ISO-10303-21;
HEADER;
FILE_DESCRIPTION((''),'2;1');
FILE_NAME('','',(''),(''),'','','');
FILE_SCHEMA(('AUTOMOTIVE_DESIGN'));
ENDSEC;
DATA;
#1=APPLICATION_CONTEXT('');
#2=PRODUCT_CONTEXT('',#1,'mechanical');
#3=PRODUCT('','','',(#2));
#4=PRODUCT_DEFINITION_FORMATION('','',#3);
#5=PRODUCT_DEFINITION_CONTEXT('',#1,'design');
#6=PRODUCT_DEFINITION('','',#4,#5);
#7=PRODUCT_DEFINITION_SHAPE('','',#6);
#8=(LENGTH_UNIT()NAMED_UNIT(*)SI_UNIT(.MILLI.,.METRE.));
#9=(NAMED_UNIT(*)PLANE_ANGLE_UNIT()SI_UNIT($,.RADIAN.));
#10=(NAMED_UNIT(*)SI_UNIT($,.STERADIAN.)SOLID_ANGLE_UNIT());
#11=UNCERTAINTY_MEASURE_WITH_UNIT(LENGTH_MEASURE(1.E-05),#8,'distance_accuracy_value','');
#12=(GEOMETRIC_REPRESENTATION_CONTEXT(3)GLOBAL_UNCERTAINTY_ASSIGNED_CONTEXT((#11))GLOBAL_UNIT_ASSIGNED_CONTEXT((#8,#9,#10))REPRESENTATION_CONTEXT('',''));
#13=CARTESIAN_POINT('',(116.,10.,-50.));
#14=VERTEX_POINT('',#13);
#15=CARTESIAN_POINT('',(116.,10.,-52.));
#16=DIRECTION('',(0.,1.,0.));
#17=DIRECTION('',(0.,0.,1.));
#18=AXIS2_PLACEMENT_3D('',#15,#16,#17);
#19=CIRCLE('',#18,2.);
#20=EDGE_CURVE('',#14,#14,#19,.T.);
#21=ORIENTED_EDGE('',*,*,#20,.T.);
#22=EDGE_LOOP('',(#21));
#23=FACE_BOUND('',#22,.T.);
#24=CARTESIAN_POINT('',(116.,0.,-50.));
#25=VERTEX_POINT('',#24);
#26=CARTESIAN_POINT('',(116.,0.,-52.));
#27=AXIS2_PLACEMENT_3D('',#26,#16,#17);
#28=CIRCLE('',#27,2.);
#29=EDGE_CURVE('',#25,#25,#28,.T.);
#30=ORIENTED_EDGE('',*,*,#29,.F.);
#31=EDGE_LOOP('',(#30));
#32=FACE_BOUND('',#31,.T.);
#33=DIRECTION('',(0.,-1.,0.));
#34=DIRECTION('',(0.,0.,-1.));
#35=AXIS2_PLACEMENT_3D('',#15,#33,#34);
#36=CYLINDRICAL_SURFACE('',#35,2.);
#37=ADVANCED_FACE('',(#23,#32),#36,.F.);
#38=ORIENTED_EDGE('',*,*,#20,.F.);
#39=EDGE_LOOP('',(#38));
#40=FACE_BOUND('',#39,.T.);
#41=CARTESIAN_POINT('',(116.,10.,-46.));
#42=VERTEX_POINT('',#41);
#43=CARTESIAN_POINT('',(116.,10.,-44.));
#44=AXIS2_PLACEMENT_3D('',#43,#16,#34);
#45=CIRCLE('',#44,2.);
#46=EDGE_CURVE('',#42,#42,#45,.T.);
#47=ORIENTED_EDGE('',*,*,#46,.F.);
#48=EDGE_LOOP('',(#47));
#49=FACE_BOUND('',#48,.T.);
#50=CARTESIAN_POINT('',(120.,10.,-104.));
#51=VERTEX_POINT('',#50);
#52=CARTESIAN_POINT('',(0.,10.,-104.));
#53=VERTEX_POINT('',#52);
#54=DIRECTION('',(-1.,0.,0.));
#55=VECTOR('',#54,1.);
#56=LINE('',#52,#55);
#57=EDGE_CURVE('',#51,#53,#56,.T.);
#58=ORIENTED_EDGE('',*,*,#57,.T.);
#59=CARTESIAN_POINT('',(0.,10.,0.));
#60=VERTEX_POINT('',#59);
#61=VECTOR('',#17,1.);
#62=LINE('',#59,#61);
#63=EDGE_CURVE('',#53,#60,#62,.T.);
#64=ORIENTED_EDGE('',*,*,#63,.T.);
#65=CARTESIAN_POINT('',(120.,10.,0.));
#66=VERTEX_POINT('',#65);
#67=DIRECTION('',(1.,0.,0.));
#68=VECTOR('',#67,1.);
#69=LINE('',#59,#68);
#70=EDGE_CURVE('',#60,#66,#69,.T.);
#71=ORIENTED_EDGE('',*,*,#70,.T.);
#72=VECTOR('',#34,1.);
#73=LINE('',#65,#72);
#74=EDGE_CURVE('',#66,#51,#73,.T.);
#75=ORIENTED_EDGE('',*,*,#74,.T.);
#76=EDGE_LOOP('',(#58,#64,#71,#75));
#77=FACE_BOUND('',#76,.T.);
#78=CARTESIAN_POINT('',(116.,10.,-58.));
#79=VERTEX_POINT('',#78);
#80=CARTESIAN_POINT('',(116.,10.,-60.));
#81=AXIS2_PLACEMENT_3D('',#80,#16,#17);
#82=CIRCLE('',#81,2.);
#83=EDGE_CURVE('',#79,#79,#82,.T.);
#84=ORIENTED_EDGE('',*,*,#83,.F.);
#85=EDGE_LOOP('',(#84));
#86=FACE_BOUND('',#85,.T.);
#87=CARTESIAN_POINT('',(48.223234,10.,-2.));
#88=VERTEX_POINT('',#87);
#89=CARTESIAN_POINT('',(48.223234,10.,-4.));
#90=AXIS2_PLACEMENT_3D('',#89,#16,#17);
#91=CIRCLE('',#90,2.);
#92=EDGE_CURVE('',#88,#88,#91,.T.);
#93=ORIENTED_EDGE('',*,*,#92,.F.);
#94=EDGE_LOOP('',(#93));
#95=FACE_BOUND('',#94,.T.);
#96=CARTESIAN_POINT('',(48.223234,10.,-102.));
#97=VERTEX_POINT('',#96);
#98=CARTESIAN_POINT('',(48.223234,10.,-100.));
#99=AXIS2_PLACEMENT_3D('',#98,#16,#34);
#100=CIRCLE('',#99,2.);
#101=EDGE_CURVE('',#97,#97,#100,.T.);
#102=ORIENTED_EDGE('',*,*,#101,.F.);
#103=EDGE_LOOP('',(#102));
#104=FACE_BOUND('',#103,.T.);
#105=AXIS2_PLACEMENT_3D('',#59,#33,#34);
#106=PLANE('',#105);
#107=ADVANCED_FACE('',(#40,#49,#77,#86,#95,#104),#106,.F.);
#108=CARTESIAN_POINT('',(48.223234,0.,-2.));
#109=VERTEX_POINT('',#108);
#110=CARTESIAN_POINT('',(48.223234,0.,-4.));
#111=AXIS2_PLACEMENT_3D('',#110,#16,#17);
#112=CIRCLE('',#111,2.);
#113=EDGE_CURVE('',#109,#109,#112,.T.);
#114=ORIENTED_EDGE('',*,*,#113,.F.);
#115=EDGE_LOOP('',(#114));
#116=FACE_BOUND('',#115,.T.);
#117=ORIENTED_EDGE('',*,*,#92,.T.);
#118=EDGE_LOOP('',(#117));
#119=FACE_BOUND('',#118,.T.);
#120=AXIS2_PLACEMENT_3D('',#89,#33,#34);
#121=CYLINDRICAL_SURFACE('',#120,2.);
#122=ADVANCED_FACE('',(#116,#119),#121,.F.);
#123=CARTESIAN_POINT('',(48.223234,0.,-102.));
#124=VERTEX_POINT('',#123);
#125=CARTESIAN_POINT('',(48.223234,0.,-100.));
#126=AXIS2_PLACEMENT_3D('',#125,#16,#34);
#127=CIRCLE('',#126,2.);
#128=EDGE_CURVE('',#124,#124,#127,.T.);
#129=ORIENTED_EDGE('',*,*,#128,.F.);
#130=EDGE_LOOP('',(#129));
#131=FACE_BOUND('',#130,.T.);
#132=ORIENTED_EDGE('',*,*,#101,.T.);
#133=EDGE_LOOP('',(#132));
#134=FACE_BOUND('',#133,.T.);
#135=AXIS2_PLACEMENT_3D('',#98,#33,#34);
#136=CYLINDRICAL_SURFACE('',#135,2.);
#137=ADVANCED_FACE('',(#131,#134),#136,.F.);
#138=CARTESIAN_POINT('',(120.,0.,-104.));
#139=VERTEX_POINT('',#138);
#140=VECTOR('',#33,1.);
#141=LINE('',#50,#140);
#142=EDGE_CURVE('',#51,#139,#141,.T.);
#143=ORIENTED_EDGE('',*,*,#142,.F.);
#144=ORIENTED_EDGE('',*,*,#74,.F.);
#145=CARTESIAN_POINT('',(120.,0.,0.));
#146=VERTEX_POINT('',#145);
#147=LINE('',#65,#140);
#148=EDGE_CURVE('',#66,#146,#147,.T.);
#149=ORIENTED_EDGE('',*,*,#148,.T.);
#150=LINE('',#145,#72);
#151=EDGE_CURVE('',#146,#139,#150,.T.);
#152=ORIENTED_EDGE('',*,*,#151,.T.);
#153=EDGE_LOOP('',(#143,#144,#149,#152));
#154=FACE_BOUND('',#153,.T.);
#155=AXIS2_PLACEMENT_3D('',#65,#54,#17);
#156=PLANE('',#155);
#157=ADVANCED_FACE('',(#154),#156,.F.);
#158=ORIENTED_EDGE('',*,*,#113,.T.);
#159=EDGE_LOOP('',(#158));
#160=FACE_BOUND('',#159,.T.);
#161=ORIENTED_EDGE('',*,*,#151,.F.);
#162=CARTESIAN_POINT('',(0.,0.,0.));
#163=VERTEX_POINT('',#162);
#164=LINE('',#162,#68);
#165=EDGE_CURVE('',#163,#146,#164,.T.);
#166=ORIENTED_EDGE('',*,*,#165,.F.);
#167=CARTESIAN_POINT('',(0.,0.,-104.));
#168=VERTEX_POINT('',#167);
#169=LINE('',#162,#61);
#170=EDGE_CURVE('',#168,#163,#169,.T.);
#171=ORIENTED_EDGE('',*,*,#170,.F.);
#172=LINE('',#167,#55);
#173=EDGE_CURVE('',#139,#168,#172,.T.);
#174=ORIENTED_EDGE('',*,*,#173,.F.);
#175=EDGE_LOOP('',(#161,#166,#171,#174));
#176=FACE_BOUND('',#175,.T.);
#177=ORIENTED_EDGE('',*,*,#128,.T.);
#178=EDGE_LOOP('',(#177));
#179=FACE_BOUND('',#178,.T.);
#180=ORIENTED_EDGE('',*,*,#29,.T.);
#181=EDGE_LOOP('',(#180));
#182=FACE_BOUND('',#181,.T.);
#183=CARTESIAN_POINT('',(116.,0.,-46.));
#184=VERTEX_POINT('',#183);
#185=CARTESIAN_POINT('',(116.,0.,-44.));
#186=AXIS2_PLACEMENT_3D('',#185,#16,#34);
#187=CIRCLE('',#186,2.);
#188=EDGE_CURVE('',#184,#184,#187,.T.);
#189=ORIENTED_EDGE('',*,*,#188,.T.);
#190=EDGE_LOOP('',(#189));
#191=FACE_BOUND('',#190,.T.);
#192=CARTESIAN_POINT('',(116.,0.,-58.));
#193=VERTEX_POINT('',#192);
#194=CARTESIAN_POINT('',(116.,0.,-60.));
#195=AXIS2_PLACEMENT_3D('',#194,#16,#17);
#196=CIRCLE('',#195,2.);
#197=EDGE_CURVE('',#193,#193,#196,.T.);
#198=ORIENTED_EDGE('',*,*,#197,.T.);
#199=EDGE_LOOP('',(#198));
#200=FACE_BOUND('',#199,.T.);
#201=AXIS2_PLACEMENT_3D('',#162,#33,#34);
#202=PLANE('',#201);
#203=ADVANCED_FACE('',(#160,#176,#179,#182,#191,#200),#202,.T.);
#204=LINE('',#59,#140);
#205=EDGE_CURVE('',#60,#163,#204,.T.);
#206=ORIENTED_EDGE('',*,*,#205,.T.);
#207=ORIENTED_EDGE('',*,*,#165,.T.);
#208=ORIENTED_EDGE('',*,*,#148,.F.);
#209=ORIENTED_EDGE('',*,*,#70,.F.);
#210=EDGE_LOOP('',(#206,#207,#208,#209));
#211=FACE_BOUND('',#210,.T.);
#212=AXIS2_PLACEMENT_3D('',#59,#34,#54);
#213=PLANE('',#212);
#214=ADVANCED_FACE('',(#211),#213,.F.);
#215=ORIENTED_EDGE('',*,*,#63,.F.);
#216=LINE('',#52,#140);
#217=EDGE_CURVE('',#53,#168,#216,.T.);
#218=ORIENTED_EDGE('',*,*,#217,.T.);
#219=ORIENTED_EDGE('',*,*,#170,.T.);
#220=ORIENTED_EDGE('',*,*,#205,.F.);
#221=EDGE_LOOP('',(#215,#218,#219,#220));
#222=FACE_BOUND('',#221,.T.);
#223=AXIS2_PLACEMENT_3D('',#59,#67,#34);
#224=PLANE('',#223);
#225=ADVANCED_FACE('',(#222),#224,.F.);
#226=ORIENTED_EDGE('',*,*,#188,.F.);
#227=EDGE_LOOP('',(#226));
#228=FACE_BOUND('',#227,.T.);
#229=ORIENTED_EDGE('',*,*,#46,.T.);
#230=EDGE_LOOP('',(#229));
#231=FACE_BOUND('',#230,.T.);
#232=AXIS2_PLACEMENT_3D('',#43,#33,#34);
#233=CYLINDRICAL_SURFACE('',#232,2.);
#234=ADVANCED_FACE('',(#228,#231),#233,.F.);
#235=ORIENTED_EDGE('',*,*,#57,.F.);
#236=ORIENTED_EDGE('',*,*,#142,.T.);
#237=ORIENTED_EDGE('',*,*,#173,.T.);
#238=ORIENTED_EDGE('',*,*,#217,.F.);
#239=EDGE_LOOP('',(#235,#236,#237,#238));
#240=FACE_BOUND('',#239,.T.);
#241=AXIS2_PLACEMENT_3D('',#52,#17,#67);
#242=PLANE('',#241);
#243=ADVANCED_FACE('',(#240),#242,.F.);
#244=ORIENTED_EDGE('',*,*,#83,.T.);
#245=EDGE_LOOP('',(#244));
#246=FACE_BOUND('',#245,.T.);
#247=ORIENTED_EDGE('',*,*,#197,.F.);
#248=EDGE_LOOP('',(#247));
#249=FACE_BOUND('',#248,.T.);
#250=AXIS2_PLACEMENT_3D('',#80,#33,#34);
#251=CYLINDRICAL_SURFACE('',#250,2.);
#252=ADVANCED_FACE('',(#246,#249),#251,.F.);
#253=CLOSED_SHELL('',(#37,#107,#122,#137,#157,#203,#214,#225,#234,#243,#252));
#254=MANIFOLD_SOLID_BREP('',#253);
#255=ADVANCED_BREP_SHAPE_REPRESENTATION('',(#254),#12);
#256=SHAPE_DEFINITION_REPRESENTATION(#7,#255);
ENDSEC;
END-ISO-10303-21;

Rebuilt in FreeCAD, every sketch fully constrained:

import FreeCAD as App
import Part
import Sketcher

doc = App.newDocument("Part")
body = doc.addObject("PartDesign::Body", "Body")

sketch1 = doc.addObject("Sketcher::SketchObject", "Sketch")
body.addObject(sketch1)
sketch1.AttachmentSupport = (doc.XZ_Plane, [""])
sketch1.MapMode = "FlatFace"
sketch1.addGeometry([
    Part.LineSegment(App.Vector(0, -104, 0), App.Vector(0, 0, 0)),
    Part.LineSegment(App.Vector(0, 0, 0), App.Vector(120, 0, 0)),
    Part.LineSegment(App.Vector(120, 0, 0), App.Vector(120, -104, 0)),
    Part.LineSegment(App.Vector(120, -104, 0), App.Vector(0, -104, 0)),
    Part.Circle(App.Vector(48.223234, -4, 0), App.Vector(0, 0, 1), 2),
    Part.Circle(App.Vector(116, -44, 0), App.Vector(0, 0, 1), 2),
    Part.Circle(App.Vector(48.223234, -100, 0), App.Vector(0, 0, 1), 2),
    Part.Circle(App.Vector(116, -52, 0), App.Vector(0, 0, 1), 2),
    Part.Circle(App.Vector(116, -60, 0), App.Vector(0, 0, 1), 2),
], False)
sketch1.addConstraint([
    Sketcher.Constraint("Coincident", 0, 2, 1, 1),
    Sketcher.Constraint("Coincident", 1, 2, 2, 1),
    Sketcher.Constraint("Coincident", 2, 2, 3, 1),
    Sketcher.Constraint("Coincident", 3, 2, 0, 1),
    Sketcher.Constraint("Vertical", 0),
    Sketcher.Constraint("Horizontal", 1),
    Sketcher.Constraint("Vertical", 2),
    Sketcher.Constraint("Horizontal", 3),
    Sketcher.Constraint("Coincident", 0, 2, -1, 1),
    Sketcher.Constraint("Equal", 4, 5),
    Sketcher.Constraint("Equal", 5, 6),
    Sketcher.Constraint("Equal", 6, 7),
    Sketcher.Constraint("Equal", 7, 8),
    Sketcher.Constraint("Vertical", 4, 3, 6, 3),
    Sketcher.Constraint("Vertical", 5, 3, 7, 3),
    Sketcher.Constraint("Vertical", 7, 3, 8, 3),
    Sketcher.Constraint("Diameter", 4, 4.0),
    Sketcher.Constraint("DistanceX", 1, 1, 1, 2, 120.0),
    Sketcher.Constraint("DistanceY", 0, 1, 0, 2, 104.0),
    Sketcher.Constraint("DistanceY", 4, 3, -1, 1, 4.0),
    Sketcher.Constraint("DistanceX", -1, 1, 5, 3, 116.0),
    Sketcher.Constraint("DistanceY", 5, 3, -1, 1, 44.0),
    Sketcher.Constraint("DistanceY", 6, 3, -1, 1, 100.0),
    Sketcher.Constraint("DistanceY", 7, 3, -1, 1, 52.0),
    Sketcher.Constraint("DistanceY", 8, 3, -1, 1, 60.0),
    Sketcher.Constraint("DistanceX", -1, 1, 4, 3, 48.223234),
])
pad1 = doc.addObject("PartDesign::Pad", "Pad")
body.addObject(pad1)
pad1.Profile = sketch1
pad1.Length = 10
pad1.Reversed = True

doc.recompute()
